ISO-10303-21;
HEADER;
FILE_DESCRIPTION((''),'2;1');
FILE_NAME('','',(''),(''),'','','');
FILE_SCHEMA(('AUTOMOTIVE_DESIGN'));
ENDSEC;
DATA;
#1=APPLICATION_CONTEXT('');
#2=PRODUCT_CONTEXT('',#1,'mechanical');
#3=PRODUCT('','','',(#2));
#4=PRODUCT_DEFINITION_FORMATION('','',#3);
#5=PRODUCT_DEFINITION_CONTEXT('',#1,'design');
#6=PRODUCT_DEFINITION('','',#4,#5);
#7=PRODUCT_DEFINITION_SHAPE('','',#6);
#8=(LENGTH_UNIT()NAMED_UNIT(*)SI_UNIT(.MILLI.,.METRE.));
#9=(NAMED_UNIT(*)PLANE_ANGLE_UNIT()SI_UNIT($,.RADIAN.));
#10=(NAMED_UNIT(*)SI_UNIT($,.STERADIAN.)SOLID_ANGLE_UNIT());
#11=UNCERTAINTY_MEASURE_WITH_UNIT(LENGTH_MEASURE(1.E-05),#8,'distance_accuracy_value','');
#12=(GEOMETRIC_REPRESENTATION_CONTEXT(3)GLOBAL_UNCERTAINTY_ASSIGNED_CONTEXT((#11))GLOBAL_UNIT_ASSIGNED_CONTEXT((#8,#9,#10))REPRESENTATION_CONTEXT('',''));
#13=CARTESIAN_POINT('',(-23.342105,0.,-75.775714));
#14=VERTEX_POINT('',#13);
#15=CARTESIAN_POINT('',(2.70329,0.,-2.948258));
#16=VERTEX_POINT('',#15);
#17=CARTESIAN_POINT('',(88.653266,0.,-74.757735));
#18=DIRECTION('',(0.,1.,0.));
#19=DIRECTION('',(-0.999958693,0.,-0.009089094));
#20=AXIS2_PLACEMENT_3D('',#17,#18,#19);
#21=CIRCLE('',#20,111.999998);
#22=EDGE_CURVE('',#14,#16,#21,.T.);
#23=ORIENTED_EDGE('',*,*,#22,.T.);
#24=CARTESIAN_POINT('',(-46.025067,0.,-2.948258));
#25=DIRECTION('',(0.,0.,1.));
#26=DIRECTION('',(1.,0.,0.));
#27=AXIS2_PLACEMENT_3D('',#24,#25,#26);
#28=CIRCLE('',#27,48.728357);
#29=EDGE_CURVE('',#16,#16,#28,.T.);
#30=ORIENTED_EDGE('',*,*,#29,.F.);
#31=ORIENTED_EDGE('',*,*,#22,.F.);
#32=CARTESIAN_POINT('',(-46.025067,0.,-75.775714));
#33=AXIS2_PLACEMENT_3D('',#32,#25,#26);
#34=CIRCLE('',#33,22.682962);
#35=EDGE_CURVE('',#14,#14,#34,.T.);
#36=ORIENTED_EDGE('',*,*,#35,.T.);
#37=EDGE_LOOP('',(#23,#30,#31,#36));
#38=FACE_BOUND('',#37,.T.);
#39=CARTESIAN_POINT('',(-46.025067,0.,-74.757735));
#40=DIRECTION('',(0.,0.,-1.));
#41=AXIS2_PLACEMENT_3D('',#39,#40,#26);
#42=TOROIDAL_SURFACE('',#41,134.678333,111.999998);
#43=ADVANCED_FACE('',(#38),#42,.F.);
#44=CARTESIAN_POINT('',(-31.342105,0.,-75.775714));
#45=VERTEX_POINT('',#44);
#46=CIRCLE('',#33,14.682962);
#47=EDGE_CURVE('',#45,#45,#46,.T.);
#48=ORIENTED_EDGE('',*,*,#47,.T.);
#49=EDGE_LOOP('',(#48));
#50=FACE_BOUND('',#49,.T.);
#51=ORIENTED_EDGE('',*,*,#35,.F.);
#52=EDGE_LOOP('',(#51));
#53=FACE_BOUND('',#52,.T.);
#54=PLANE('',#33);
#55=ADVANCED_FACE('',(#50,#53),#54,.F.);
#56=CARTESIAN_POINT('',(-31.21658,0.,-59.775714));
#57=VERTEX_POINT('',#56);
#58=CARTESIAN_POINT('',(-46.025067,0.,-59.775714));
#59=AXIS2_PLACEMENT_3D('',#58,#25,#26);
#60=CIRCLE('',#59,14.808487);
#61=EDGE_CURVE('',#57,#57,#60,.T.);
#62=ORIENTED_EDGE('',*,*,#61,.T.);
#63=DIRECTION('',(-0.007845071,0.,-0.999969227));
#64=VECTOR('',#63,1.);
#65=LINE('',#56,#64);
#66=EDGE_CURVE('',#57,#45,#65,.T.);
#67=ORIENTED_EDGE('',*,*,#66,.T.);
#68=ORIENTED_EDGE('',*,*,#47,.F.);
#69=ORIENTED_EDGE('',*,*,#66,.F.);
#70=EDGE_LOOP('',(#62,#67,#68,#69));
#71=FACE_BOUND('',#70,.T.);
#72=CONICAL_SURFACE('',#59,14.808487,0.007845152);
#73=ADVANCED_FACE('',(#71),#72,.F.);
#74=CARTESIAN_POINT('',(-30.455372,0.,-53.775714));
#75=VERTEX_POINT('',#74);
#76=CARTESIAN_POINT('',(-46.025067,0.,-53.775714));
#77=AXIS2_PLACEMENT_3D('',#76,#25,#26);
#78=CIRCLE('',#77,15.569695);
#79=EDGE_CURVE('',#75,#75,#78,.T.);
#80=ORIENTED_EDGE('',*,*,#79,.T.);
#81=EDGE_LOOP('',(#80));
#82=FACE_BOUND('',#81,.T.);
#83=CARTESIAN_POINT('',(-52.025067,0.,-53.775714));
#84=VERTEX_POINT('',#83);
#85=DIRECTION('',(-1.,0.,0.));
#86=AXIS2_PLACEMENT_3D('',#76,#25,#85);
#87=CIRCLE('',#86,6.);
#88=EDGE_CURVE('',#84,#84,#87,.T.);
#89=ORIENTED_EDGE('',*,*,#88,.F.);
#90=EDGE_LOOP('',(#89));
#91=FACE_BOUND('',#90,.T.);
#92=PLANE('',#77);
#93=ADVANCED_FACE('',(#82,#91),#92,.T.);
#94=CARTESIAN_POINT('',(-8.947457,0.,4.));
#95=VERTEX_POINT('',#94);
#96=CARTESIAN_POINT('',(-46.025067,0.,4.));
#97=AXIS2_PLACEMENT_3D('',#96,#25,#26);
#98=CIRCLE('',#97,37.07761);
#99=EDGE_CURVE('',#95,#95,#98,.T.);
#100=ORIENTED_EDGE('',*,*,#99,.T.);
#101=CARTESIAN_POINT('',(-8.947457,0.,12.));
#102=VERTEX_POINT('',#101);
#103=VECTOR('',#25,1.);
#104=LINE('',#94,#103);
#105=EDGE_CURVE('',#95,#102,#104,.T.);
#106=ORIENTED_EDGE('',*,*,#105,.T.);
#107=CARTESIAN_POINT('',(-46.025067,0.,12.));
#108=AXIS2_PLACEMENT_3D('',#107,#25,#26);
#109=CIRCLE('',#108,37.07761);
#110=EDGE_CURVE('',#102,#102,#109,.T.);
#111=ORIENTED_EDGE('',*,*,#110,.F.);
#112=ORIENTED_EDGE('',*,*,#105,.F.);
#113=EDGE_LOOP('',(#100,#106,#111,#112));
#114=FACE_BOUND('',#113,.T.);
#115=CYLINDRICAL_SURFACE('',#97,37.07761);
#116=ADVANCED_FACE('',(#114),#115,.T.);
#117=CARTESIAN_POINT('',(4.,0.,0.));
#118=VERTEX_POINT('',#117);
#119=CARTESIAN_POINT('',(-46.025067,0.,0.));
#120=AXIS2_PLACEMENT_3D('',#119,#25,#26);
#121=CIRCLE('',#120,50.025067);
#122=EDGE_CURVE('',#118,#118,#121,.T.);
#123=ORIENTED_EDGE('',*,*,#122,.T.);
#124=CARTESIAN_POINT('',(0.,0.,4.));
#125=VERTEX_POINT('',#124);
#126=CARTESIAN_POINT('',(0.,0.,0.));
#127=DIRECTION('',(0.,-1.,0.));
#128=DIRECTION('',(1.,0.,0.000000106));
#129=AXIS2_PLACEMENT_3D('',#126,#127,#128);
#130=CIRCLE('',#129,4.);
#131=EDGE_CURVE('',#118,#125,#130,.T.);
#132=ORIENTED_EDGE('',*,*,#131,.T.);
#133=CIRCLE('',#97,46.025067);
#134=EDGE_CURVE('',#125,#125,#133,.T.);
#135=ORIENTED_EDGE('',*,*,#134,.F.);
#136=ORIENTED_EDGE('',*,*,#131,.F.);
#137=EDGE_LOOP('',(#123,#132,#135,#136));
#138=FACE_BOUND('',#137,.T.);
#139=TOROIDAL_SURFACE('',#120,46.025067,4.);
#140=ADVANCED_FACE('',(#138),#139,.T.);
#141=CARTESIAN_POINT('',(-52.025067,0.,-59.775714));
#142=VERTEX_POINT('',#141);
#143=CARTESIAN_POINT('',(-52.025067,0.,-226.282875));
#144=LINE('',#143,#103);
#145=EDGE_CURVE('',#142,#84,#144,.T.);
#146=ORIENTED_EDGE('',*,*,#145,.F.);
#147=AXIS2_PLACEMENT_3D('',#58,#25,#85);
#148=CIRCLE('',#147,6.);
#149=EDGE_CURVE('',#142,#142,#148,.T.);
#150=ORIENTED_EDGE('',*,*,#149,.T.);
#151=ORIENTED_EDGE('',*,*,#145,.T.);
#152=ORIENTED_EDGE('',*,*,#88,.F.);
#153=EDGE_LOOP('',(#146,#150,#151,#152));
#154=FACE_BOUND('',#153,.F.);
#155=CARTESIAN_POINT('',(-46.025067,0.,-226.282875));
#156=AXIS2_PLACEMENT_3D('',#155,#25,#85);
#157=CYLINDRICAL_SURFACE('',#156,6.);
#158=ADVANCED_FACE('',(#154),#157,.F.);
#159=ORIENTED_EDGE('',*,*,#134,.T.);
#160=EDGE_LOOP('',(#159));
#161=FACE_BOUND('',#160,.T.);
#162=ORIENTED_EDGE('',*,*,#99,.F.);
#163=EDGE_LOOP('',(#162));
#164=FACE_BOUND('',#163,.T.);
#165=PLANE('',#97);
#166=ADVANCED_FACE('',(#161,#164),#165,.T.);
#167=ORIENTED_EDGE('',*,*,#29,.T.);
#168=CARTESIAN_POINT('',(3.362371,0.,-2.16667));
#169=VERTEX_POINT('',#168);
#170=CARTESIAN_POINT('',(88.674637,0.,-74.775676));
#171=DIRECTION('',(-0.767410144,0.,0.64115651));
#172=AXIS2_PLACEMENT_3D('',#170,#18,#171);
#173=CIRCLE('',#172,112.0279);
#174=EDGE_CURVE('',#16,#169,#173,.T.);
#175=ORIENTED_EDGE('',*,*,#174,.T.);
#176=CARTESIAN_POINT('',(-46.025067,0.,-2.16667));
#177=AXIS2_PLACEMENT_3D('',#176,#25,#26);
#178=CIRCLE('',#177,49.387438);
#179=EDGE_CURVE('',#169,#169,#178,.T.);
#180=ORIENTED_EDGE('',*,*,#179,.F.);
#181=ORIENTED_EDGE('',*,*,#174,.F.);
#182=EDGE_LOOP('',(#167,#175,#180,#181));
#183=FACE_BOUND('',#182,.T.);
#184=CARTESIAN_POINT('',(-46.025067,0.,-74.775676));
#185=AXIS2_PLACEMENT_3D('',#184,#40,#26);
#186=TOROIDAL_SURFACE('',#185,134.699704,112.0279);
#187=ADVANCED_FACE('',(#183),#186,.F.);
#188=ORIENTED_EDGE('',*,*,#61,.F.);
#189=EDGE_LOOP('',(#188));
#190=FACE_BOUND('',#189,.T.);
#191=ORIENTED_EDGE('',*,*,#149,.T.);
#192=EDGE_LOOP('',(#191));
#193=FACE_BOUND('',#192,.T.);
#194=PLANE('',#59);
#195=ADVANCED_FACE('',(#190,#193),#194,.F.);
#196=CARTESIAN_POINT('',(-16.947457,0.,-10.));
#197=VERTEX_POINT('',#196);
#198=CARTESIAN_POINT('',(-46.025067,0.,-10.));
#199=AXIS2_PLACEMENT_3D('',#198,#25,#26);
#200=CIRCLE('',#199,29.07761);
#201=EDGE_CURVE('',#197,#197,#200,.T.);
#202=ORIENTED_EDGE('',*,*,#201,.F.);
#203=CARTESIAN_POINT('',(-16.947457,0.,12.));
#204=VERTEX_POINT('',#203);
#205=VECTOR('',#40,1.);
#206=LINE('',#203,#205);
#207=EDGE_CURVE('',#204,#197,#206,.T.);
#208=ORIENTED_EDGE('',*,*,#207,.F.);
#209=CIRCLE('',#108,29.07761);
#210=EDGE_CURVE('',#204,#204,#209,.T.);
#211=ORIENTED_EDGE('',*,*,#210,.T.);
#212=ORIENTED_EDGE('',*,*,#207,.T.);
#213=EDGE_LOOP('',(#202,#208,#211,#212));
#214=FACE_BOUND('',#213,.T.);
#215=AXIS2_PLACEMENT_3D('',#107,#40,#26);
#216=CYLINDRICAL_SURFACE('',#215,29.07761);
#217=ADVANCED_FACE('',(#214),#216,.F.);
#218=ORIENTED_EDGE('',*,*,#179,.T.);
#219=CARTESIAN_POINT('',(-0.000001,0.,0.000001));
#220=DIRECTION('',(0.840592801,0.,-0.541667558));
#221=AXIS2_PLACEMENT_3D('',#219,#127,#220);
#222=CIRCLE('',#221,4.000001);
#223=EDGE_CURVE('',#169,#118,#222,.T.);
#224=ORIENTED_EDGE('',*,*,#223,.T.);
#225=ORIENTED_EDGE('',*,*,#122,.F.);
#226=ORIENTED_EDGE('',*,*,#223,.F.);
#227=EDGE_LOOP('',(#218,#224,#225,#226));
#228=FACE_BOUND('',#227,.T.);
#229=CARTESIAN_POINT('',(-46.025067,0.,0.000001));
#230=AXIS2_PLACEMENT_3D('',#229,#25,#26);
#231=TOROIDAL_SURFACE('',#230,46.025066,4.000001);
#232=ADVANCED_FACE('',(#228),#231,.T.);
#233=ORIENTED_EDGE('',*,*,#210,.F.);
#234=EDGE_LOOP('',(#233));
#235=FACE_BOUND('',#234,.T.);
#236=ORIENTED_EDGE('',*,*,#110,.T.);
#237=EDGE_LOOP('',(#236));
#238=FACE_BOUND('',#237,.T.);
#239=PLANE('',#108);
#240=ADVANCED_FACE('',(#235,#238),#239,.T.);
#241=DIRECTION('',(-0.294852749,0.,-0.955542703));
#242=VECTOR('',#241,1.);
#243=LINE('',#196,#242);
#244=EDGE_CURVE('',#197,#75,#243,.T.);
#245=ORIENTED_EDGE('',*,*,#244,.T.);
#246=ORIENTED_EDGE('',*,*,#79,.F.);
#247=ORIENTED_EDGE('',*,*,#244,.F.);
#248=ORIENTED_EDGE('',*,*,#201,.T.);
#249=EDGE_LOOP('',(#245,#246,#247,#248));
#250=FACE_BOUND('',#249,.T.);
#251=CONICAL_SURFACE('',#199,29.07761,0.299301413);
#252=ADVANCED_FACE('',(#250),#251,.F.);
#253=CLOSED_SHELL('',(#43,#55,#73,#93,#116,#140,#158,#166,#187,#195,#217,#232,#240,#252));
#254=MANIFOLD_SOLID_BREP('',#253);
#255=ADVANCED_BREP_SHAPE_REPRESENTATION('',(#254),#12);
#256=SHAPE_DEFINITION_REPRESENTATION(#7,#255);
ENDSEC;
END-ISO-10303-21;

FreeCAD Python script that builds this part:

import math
import FreeCAD as App
import Part
import Sketcher

V = App.Vector

doc = App.newDocument("Part")
params = doc.addObject("Spreadsheet::Sheet", "Params")
for row, (alias, value) in enumerate([
    ("sketch1_radius", "4.000001 mm"),
    ("sketch1_width", "8 mm"),
    ("sketch1_width2", "8 mm"),
    ("sketch1_height", "8 mm"),
    ("sketch1_height2", "22 mm"),
    ("revolution_angle", "360 deg"),
    ("sketch2_diameter", "12 mm"),
    ("hole_diameter", "12 mm"),
], start=1):
    params.set(f"A{row}", alias)
    params.set(f"B{row}", "=" + value)
    params.setAlias(f"B{row}", alias)

body = doc.addObject("PartDesign::Body", "Body")

# Sketch on XZ plane
sketch1 = body.newObject("Sketcher::SketchObject", "Sketch")
sketch1.AttachmentSupport = (doc.getObject("XZ_Plane"), [""])
sketch1.MapMode = "FlatFace"
sketch1.addGeometry([
    Part.LineSegment(V(0, 4, 0), V(-8.947457, 4, 0)),  # 0
    Part.LineSegment(V(-8.947457, 4, 0), V(-8.947457, 12, 0)),  # 1
    Part.LineSegment(V(-8.947457, 12, 0), V(-16.947457, 12, 0)),  # 2
    Part.LineSegment(V(-16.947457, 12, 0), V(-16.947457, -10, 0)),  # 3
    Part.LineSegment(V(-16.947457, -10, 0), V(-30.455372, -53.775714, 0)),  # 4
    Part.LineSegment(V(-30.455372, -53.775714, 0), V(-46.025067, -53.775714, 0)),  # 5
    Part.LineSegment(V(-46.025067, -53.775714, 0), V(-46.025067, -59.775714, 0)),  # 6
    Part.LineSegment(V(-46.025067, -59.775714, 0), V(-31.21658, -59.775714, 0)),  # 7
    Part.LineSegment(V(-31.21658, -59.775714, 0), V(-31.342105, -75.775714, 0)),  # 8
    Part.LineSegment(V(-31.342105, -75.775714, 0), V(-23.342105, -75.775714, 0)),  # 9
    Part.ArcOfCircle(Part.Circle(V(88.653266, -74.757735, 0), V(0, 0, 1), 111.999998), math.radians(140.121922), math.radians(180.520774)),  # 10
    Part.ArcOfCircle(Part.Circle(V(88.674637, -74.775676, 0), V(0, 0, 1), 112.0279), math.radians(139.598997), math.radians(140.121888)),  # 11
    Part.ArcOfCircle(Part.Circle(V(-0.000001, 0.000001, 0), V(0, 0, 1), 4.000001), math.radians(-32.797229), math.radians(-0.000013)),  # 12
    Part.ArcOfCircle(Part.Circle(V(0, 0, 0), V(0, 0, 1), 4), math.radians(0.000006), math.radians(89.999994)),  # 13
], False)
sketch1.addGeometry(Part.LineSegment(V(-46.025067, -75.775714, 0), V(-46.025067, 12, 0)), True)  # axis
sketch1.addConstraint([
    Sketcher.Constraint("Coincident", 0, 2, 1, 1),
    Sketcher.Constraint("Coincident", 1, 2, 2, 1),
    Sketcher.Constraint("Coincident", 2, 2, 3, 1),
    Sketcher.Constraint("Coincident", 3, 2, 4, 1),
    Sketcher.Constraint("Coincident", 4, 2, 5, 1),
    Sketcher.Constraint("Coincident", 5, 2, 6, 1),
    Sketcher.Constraint("Coincident", 6, 2, 7, 1),
    Sketcher.Constraint("Coincident", 7, 2, 8, 1),
    Sketcher.Constraint("Coincident", 8, 2, 9, 1),
    Sketcher.Constraint("Coincident", 9, 2, 10, 2),
    Sketcher.Constraint("Coincident", 10, 1, 11, 2),
    Sketcher.Constraint("Coincident", 11, 1, 12, 1),
    Sketcher.Constraint("Coincident", 12, 2, 13, 1),
    Sketcher.Constraint("Coincident", 13, 2, 0, 1),
    Sketcher.Constraint("Horizontal", 0),
    Sketcher.Constraint("Vertical", 1),
    Sketcher.Constraint("Horizontal", 2),
    Sketcher.Constraint("Vertical", 3),
    Sketcher.Constraint("Horizontal", 5),
    Sketcher.Constraint("Vertical", 6),
    Sketcher.Constraint("Horizontal", 7),
    Sketcher.Constraint("Horizontal", 9),
    Sketcher.Constraint("Vertical", 14),
    Sketcher.Constraint("Coincident", 12, 3, -1, 1),
    Sketcher.Constraint("Coincident", 13, 3, -1, 1),
    Sketcher.Constraint("PointOnObject", 12, 2, -1),
    Sketcher.Constraint("PointOnObject", 13, 2, -2),
    Sketcher.Constraint("Radius", 12, 4.000001),
    Sketcher.Constraint("DistanceX", 2, 2, 2, 1, 8.0),
    Sketcher.Constraint("DistanceX", 9, 1, 9, 2, 8.0),
    Sketcher.Constraint("DistanceY", 1, 1, 1, 2, 8.0),
    Sketcher.Constraint("DistanceY", 3, 2, 3, 1, 22.0),
    Sketcher.Constraint("DistanceY", 6, 2, 6, 1, 6.0),
    Sketcher.Constraint("DistanceY", -1, 1, 14, 2, 12.0),
    Sketcher.Constraint("DistanceY", 8, 2, 7, 2, 16.0),
    Sketcher.Constraint("DistanceY", 14, 1, 6, 2, 16.0),
    Sketcher.Constraint("Radius", 11, 112.0279),
    Sketcher.Constraint("Radius", 10, 111.999998),
    Sketcher.Constraint("Distance", 4, 45.81241),
    Sketcher.Constraint("DistanceX", 0, 2, 0, 1, 8.947457),
    Sketcher.Constraint("DistanceX", 5, 2, 5, 1, 15.569695),
    Sketcher.Constraint("DistanceX", 7, 1, 7, 2, 14.808487),
    Sketcher.Constraint("DistanceY", 14, 1, 14, 2, 87.775714),
    Sketcher.Constraint("DistanceX", -1, 1, 10, 1, 2.70329),
    Sketcher.Constraint("DistanceY", 10, 1, -1, 1, 2.948258),
    Sketcher.Constraint("DistanceX", 10, 3, 11, 3, 0.021371),
    Sketcher.Constraint("DistanceX", 12, 3, 11, 3, 88.674638),
    Sketcher.Constraint("DistanceX", 14, 1, 9, 2, 22.682962),
])
sketch1.setExpression("Constraints[27]", "Params.sketch1_radius")
sketch1.setExpression("Constraints[28]", "Params.sketch1_width")
sketch1.setExpression("Constraints[29]", "Params.sketch1_width2")
sketch1.setExpression("Constraints[30]", "Params.sketch1_height")
sketch1.setExpression("Constraints[31]", "Params.sketch1_height2")
revolution = body.newObject("PartDesign::Revolution", "Revolution")
revolution.Profile = sketch1
revolution.ReferenceAxis = (sketch1, ["Axis0"])
revolution.setExpression("Angle", "Params.revolution_angle")

# Sketch on XY plane
sketch2 = body.newObject("Sketcher::SketchObject", "Sketch001")
sketch2.AttachmentSupport = (doc.getObject("XY_Plane"), [""])
sketch2.MapMode = "FlatFace"
sketch2.AttachmentOffset = App.Placement(V(0, 0, -59.775714), App.Rotation())
sketch2.addGeometry(Part.Circle(V(-46.025067, 0, 0), V(0, 0, 1), 6), False)
sketch2.addConstraint([
    Sketcher.Constraint("PointOnObject", 0, 3, -1),
    Sketcher.Constraint("Diameter", 0, 12.0),
    Sketcher.Constraint("DistanceX", 0, 3, -1, 1, 46.025067),
])
sketch2.setExpression("Constraints[1]", "Params.sketch2_diameter")
doc.recompute()
hole = body.newObject("PartDesign::Hole", "Hole")
hole.Profile = sketch2
hole.ThreadType = "None"
hole.setExpression("Diameter", "Params.hole_diameter")
hole.DepthType = "ThroughAll"
hole.Reversed = True

doc.recompute()
